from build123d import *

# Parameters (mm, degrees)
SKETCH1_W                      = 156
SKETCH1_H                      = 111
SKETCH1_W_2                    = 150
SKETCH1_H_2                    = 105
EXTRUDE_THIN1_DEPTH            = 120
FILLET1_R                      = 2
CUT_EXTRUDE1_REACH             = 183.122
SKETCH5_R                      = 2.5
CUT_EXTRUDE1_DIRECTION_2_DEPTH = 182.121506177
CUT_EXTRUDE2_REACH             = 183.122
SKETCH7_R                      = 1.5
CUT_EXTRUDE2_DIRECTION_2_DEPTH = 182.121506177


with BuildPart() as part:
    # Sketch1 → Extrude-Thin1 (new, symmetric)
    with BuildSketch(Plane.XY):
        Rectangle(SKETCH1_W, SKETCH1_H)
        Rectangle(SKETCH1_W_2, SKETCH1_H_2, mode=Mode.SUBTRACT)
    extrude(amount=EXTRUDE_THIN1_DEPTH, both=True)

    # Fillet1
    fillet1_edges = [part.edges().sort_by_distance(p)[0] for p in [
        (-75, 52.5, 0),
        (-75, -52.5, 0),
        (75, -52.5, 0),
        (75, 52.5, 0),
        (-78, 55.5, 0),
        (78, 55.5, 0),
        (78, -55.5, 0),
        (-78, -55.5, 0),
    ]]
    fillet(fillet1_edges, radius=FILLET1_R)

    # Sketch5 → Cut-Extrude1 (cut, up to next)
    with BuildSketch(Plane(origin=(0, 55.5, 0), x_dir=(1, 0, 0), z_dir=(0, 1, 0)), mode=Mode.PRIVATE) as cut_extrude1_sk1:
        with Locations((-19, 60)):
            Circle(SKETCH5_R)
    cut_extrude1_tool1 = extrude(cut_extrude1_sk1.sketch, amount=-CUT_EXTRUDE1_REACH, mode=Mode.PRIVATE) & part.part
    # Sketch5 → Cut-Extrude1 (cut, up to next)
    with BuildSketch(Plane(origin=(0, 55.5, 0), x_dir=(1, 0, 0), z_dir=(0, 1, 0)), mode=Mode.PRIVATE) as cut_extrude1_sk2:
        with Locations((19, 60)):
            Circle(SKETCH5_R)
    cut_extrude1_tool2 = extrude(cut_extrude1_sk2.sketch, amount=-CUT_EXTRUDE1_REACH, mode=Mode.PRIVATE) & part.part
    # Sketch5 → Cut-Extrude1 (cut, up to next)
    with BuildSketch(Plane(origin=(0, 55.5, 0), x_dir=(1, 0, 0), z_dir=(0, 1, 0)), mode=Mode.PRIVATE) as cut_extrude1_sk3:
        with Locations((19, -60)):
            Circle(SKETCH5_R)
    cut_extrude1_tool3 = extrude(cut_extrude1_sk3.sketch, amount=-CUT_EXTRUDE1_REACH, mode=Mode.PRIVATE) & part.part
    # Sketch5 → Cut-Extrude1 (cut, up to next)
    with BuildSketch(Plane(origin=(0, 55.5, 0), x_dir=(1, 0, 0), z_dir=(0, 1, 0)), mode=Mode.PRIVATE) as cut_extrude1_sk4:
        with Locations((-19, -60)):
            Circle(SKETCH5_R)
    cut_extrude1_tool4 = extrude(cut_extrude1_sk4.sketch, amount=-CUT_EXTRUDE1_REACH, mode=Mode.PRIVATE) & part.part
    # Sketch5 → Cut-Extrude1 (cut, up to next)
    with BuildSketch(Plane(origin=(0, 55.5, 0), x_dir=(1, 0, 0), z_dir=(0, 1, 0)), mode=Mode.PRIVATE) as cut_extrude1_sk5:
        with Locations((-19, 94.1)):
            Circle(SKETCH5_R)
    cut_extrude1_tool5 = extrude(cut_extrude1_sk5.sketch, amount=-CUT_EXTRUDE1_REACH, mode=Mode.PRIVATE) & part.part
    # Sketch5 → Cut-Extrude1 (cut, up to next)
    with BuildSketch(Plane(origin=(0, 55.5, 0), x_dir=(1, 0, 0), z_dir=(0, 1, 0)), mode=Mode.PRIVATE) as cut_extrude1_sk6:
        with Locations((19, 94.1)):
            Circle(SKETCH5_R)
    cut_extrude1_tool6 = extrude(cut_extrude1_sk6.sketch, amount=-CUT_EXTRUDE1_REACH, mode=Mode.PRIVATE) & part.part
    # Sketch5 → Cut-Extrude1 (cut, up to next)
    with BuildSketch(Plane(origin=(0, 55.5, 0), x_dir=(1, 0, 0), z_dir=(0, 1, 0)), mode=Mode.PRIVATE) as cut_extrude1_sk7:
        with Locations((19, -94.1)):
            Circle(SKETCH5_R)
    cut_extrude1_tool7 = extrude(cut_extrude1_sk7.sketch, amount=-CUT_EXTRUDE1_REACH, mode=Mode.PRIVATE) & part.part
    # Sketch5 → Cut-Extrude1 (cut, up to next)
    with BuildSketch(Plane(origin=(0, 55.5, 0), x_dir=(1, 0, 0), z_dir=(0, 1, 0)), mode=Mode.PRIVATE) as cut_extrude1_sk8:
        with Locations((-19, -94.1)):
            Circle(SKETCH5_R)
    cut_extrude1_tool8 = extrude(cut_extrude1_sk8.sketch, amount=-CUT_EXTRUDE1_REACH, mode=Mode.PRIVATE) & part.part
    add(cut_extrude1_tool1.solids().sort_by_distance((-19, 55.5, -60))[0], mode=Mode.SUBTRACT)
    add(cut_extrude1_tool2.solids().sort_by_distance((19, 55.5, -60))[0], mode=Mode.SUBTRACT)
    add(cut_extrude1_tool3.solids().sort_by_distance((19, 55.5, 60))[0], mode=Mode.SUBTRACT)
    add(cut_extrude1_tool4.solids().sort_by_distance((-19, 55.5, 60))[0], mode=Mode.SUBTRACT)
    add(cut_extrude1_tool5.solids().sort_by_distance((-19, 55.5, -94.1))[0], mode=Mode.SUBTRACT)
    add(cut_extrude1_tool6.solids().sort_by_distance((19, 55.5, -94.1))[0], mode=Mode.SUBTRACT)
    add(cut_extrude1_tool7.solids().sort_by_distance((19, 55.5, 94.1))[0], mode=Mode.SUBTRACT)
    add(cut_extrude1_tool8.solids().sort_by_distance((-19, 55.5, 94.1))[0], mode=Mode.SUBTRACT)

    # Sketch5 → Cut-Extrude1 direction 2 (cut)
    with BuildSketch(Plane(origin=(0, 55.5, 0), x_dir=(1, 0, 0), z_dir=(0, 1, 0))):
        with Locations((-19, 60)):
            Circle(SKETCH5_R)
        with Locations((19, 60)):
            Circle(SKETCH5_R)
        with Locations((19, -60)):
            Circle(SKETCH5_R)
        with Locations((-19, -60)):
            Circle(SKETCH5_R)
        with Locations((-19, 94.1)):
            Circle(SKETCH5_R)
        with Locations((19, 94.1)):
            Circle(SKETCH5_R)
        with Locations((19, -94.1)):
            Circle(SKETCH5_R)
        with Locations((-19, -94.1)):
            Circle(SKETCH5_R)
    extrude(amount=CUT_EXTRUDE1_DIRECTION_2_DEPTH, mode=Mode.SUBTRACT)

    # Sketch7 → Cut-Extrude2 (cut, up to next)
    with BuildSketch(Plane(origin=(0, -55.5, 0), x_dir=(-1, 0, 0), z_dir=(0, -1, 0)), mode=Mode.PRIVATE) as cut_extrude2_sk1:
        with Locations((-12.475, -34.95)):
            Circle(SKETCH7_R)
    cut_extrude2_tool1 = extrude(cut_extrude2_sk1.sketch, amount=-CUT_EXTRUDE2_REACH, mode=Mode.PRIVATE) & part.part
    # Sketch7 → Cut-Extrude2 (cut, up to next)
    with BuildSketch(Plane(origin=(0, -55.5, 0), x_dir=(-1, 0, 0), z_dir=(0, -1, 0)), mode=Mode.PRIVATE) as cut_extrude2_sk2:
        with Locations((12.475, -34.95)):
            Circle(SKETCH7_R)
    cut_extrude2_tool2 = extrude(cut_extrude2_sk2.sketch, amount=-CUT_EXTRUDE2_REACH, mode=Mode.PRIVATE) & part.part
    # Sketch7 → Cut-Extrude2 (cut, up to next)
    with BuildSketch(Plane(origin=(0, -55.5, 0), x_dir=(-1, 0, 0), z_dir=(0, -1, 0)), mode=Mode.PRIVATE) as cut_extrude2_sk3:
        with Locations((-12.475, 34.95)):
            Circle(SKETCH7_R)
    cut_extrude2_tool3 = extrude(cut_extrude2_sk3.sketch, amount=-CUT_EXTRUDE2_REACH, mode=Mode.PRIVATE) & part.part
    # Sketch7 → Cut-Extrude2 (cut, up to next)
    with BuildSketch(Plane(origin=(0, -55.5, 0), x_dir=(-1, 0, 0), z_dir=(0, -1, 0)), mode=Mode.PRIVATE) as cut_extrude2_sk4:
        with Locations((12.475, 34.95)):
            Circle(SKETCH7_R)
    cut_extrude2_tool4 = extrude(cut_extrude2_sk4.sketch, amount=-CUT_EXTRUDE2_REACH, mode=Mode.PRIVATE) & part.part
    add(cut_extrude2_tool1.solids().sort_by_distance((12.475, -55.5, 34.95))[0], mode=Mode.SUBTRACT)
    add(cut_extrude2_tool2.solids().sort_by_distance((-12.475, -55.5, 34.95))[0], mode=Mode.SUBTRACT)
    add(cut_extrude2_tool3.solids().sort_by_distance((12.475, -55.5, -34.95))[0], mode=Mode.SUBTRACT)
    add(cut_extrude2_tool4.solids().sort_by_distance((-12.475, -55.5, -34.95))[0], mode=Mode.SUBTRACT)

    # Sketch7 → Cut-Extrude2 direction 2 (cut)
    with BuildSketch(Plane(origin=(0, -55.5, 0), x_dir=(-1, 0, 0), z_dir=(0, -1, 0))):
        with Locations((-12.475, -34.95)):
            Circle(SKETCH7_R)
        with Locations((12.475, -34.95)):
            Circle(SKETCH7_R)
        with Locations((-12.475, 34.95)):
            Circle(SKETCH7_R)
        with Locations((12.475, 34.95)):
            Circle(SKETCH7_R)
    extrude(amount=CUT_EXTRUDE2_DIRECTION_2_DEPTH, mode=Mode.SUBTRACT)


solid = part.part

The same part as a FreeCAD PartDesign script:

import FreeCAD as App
import Part
import Sketcher

V = App.Vector
Q = App.Units.Quantity


def edges_at(feature, points):
    """Names of the edges that pass closest to the given points."""
    edges = feature.Shape.Edges
    near = lambda p: min(range(len(edges)), key=lambda i: edges[i].distToShape(Part.Vertex(*p))[0])
    return sorted({f"Edge{near(p) + 1}" for p in points})


def add_polygon(sketch, points):
    """Adds a closed chain of lines whose ends are joined by coincident constraints."""
    first, n = sketch.GeometryCount, len(points)
    for a, b in zip(points, points[1:] + points[:1]):
        sketch.addGeometry(Part.LineSegment(App.Vector(*a, 0), App.Vector(*b, 0)), False)
    for i in range(n):
        sketch.addConstraint(Sketcher.Constraint("Coincident", first + i, 2, first + (i + 1) % n, 1))

doc = App.newDocument("Part")
params = doc.addObject("Spreadsheet::Sheet", "Params")
for row, (alias, value) in enumerate([
    ("sketch1_width", "156 mm"),
    ("sketch1_width2", "150 mm"),
    ("sketch1_height", "111 mm"),
    ("sketch1_height2", "105 mm"),
    ("pad1_length", "240 mm"),
    ("fillet_radius", "2 mm"),
    ("sketch2_diameter", "5 mm"),
    ("sketch3_diameter", "5 mm"),
    ("sketch4_diameter", "5 mm"),
    ("sketch5_diameter", "5 mm"),
    ("sketch6_diameter", "5 mm"),
    ("sketch7_diameter", "5 mm"),
    ("sketch8_diameter", "5 mm"),
    ("sketch9_diameter", "5 mm"),
    ("sketch10_diameter", "5 mm"),
    ("pocket9_length", "182.121506 mm"),
    ("sketch11_diameter", "3 mm"),
    ("sketch12_diameter", "3 mm"),
    ("sketch13_diameter", "3 mm"),
    ("sketch14_diameter", "3 mm"),
    ("sketch15_diameter", "3 mm"),
    ("pocket14_length", "182.121506 mm"),
], start=1):
    params.set(f"A{row}", alias)
    params.set(f"B{row}", "=" + value)
    params.setAlias(f"B{row}", alias)

body = doc.addObject("PartDesign::Body", "Body")

# Sketch on XY plane
sketch1 = body.newObject("Sketcher::SketchObject", "Sketch")
sketch1.AttachmentSupport = (doc.getObject("XY_Plane"), [""])
sketch1.MapMode = "FlatFace"
add_polygon(sketch1, [(-78, 55.5), (-78, -55.5), (78, -55.5), (78, 55.5)])  # lines 0-3
add_polygon(sketch1, [(75, -52.5), (-75, -52.5), (-75, 52.5), (75, 52.5)])  # lines 4-7
sketch1.addConstraint([
    Sketcher.Constraint("Vertical", 0),
    Sketcher.Constraint("Horizontal", 1),
    Sketcher.Constraint("Vertical", 2),
    Sketcher.Constraint("Horizontal", 3),
    Sketcher.Constraint("Horizontal", 4),
    Sketcher.Constraint("Vertical", 5),
    Sketcher.Constraint("Horizontal", 6),
    Sketcher.Constraint("Vertical", 7),
    Sketcher.Constraint("Symmetric", 0, 2, 2, 2, -1, 1),
    Sketcher.Constraint("Symmetric", 4, 2, 6, 2, -1, 1),
    Sketcher.Constraint("DistanceX", 1, 1, 1, 2, Q("156 mm")),
    Sketcher.Constraint("DistanceX", 4, 2, 4, 1, Q("150 mm")),
    Sketcher.Constraint("DistanceY", 0, 2, 0, 1, Q("111 mm")),
    Sketcher.Constraint("DistanceY", 5, 1, 5, 2, Q("105 mm")),
])
sketch1.setExpression("Constraints[18]", "Params.sketch1_width")
sketch1.setExpression("Constraints[19]", "Params.sketch1_width2")
sketch1.setExpression("Constraints[20]", "Params.sketch1_height")
sketch1.setExpression("Constraints[21]", "Params.sketch1_height2")
pad1 = body.newObject("PartDesign::Pad", "Pad")
pad1.Profile = sketch1
pad1.setExpression("Length", "Params.pad1_length")
pad1.Midplane = True
doc.recompute()

fillet = body.newObject("PartDesign::Fillet", "Fillet")
fillet.Base = (pad1, edges_at(pad1, [
    (-75, 52.5, 0),
    (-75, -52.5, 0),
    (75, -52.5, 0),
    (75, 52.5, 0),
    (-78, 55.5, 0),
    (78, 55.5, 0),
    (78, -55.5, 0),
    (-78, -55.5, 0),
]))
fillet.setExpression("Radius", "Params.fillet_radius")

# Sketch on XZ plane
sketch2 = body.newObject("Sketcher::SketchObject", "Sketch001")
sketch2.AttachmentSupport = (doc.getObject("XZ_Plane"), [""])
sketch2.MapMode = "FlatFace"
sketch2.AttachmentOffset = App.Placement(V(0, 0, -55.5), App.Rotation())
sketch2.addGeometry(Part.Circle(V(-19, -60, 0), V(0, 0, 1), 2.5), False)
sketch2.addConstraint([
    Sketcher.Constraint("Diameter", 0, Q("5 mm")),
    Sketcher.Constraint("DistanceX", 0, 3, -1, 1, Q("19 mm")),
    Sketcher.Constraint("DistanceY", 0, 3, -1, 1, Q("60 mm")),
])
sketch2.setExpression("Constraints[0]", "Params.sketch2_diameter")
pocket1 = body.newObject("PartDesign::Pocket", "Pocket")
pocket1.Profile = sketch2
pocket1.Type = "UpToFirst"
pocket1.Reversed = True

# Sketch on XZ plane
sketch3 = body.newObject("Sketcher::SketchObject", "Sketch002")
sketch3.AttachmentSupport = (doc.getObject("XZ_Plane"), [""])
sketch3.MapMode = "FlatFace"
sketch3.AttachmentOffset = App.Placement(V(0, 0, -55.5), App.Rotation())
sketch3.addGeometry(Part.Circle(V(19, -60, 0), V(0, 0, 1), 2.5), False)
sketch3.addConstraint([
    Sketcher.Constraint("Diameter", 0, Q("5 mm")),
    Sketcher.Constraint("DistanceX", -1, 1, 0, 3, Q("19 mm")),
    Sketcher.Constraint("DistanceY", 0, 3, -1, 1, Q("60 mm")),
])
sketch3.setExpression("Constraints[0]", "Params.sketch3_diameter")
pocket2 = body.newObject("PartDesign::Pocket", "Pocket001")
pocket2.Profile = sketch3
pocket2.Type = "UpToFirst"
pocket2.Reversed = True

# Sketch on XZ plane
sketch4 = body.newObject("Sketcher::SketchObject", "Sketch003")
sketch4.AttachmentSupport = (doc.getObject("XZ_Plane"), [""])
sketch4.MapMode = "FlatFace"
sketch4.AttachmentOffset = App.Placement(V(0, 0, -55.5), App.Rotation())
sketch4.addGeometry(Part.Circle(V(19, 60, 0), V(0, 0, 1), 2.5), False)
sketch4.addConstraint([
    Sketcher.Constraint("Diameter", 0, Q("5 mm")),
    Sketcher.Constraint("DistanceX", -1, 1, 0, 3, Q("19 mm")),
    Sketcher.Constraint("DistanceY", -1, 1, 0, 3, Q("60 mm")),
])
sketch4.setExpression("Constraints[0]", "Params.sketch4_diameter")
pocket3 = body.newObject("PartDesign::Pocket", "Pocket002")
pocket3.Profile = sketch4
pocket3.Type = "UpToFirst"
pocket3.Reversed = True

# Sketch on XZ plane
sketch5 = body.newObject("Sketcher::SketchObject", "Sketch004")
sketch5.AttachmentSupport = (doc.getObject("XZ_Plane"), [""])
sketch5.MapMode = "FlatFace"
sketch5.AttachmentOffset = App.Placement(V(0, 0, -55.5), App.Rotation())
sketch5.addGeometry(Part.Circle(V(-19, 60, 0), V(0, 0, 1), 2.5), False)
sketch5.addConstraint([
    Sketcher.Constraint("Diameter", 0, Q("5 mm")),
    Sketcher.Constraint("DistanceX", 0, 3, -1, 1, Q("19 mm")),
    Sketcher.Constraint("DistanceY", -1, 1, 0, 3, Q("60 mm")),
])
sketch5.setExpression("Constraints[0]", "Params.sketch5_diameter")
pocket4 = body.newObject("PartDesign::Pocket", "Pocket003")
pocket4.Profile = sketch5
pocket4.Type = "UpToFirst"
pocket4.Reversed = True

# Sketch on XZ plane
sketch6 = body.newObject("Sketcher::SketchObject", "Sketch005")
sketch6.AttachmentSupport = (doc.getObject("XZ_Plane"), [""])
sketch6.MapMode = "FlatFace"
sketch6.AttachmentOffset = App.Placement(V(0, 0, -55.5), App.Rotation())
sketch6.addGeometry(Part.Circle(V(-19, -94.1, 0), V(0, 0, 1), 2.5), False)
sketch6.addConstraint([
    Sketcher.Constraint("Diameter", 0, Q("5 mm")),
    Sketcher.Constraint("DistanceX", 0, 3, -1, 1, Q("19 mm")),
    Sketcher.Constraint("DistanceY", 0, 3, -1, 1, Q("94.1 mm")),
])
sketch6.setExpression("Constraints[0]", "Params.sketch6_diameter")
pocket5 = body.newObject("PartDesign::Pocket", "Pocket004")
pocket5.Profile = sketch6
pocket5.Type = "UpToFirst"
pocket5.Reversed = True

# Sketch on XZ plane
sketch7 = body.newObject("Sketcher::SketchObject", "Sketch006")
sketch7.AttachmentSupport = (doc.getObject("XZ_Plane"), [""])
sketch7.MapMode = "FlatFace"
sketch7.AttachmentOffset = App.Placement(V(0, 0, -55.5), App.Rotation())
sketch7.addGeometry(Part.Circle(V(19, -94.1, 0), V(0, 0, 1), 2.5), False)
sketch7.addConstraint([
    Sketcher.Constraint("Diameter", 0, Q("5 mm")),
    Sketcher.Constraint("DistanceX", -1, 1, 0, 3, Q("19 mm")),
    Sketcher.Constraint("DistanceY", 0, 3, -1, 1, Q("94.1 mm")),
])
sketch7.setExpression("Constraints[0]", "Params.sketch7_diameter")
pocket6 = body.newObject("PartDesign::Pocket", "Pocket005")
pocket6.Profile = sketch7
pocket6.Type = "UpToFirst"
pocket6.Reversed = True

# Sketch on XZ plane
sketch8 = body.newObject("Sketcher::SketchObject", "Sketch007")
sketch8.AttachmentSupport = (doc.getObject("XZ_Plane"), [""])
sketch8.MapMode = "FlatFace"
sketch8.AttachmentOffset = App.Placement(V(0, 0, -55.5), App.Rotation())
sketch8.addGeometry(Part.Circle(V(19, 94.1, 0), V(0, 0, 1), 2.5), False)
sketch8.addConstraint([
    Sketcher.Constraint("Diameter", 0, Q("5 mm")),
    Sketcher.Constraint("DistanceX", -1, 1, 0, 3, Q("19 mm")),
    Sketcher.Constraint("DistanceY", -1, 1, 0, 3, Q("94.1 mm")),
])
sketch8.setExpression("Constraints[0]", "Params.sketch8_diameter")
pocket7 = body.newObject("PartDesign::Pocket", "Pocket006")
pocket7.Profile = sketch8
pocket7.Type = "UpToFirst"
pocket7.Reversed = True

# Sketch on XZ plane
sketch9 = body.newObject("Sketcher::SketchObject", "Sketch008")
sketch9.AttachmentSupport = (doc.getObject("XZ_Plane"), [""])
sketch9.MapMode = "FlatFace"
sketch9.AttachmentOffset = App.Placement(V(0, 0, -55.5), App.Rotation())
sketch9.addGeometry(Part.Circle(V(-19, 94.1, 0), V(0, 0, 1), 2.5), False)
sketch9.addConstraint([
    Sketcher.Constraint("Diameter", 0, Q("5 mm")),
    Sketcher.Constraint("DistanceX", 0, 3, -1, 1, Q("19 mm")),
    Sketcher.Constraint("DistanceY", -1, 1, 0, 3, Q("94.1 mm")),
])
sketch9.setExpression("Constraints[0]", "Params.sketch9_diameter")
pocket8 = body.newObject("PartDesign::Pocket", "Pocket007")
pocket8.Profile = sketch9
pocket8.Type = "UpToFirst"
pocket8.Reversed = True

# Sketch on XZ plane
sketch10 = body.newObject("Sketcher::SketchObject", "Sketch009")
sketch10.AttachmentSupport = (doc.getObject("XZ_Plane"), [""])
sketch10.MapMode = "FlatFace"
sketch10.AttachmentOffset = App.Placement(V(0, 0, -55.5), App.Rotation())
sketch10.addGeometry([
    Part.Circle(V(-19, -60, 0), V(0, 0, 1), 2.5),  # 0
    Part.Circle(V(19, -60, 0), V(0, 0, 1), 2.5),  # 1
    Part.Circle(V(19, 60, 0), V(0, 0, 1), 2.5),  # 2
    Part.Circle(V(-19, 60, 0), V(0, 0, 1), 2.5),  # 3
    Part.Circle(V(-19, -94.1, 0), V(0, 0, 1), 2.5),  # 4
    Part.Circle(V(19, -94.1, 0), V(0, 0, 1), 2.5),  # 5
    Part.Circle(V(19, 94.1, 0), V(0, 0, 1), 2.5),  # 6
    Part.Circle(V(-19, 94.1, 0), V(0, 0, 1), 2.5),  # 7
], False)
sketch10.addConstraint([
    Sketcher.Constraint("Equal", 0, 1),
    Sketcher.Constraint("Equal", 1, 2),
    Sketcher.Constraint("Equal", 2, 3),
    Sketcher.Constraint("Equal", 3, 4),
    Sketcher.Constraint("Equal", 4, 5),
    Sketcher.Constraint("Equal", 5, 6),
    Sketcher.Constraint("Equal", 6, 7),
    Sketcher.Constraint("Symmetric", 0, 3, 2, 3, -1, 1),
    Sketcher.Constraint("Symmetric", 1, 3, 3, 3, -1, 1),
    Sketcher.Constraint("Symmetric", 4, 3, 6, 3, -1, 1),
    Sketcher.Constraint("Symmetric", 5, 3, 7, 3, -1, 1),
    Sketcher.Constraint("Symmetric", 0, 3, 1, 3, -2),
    Sketcher.Constraint("Symmetric", 4, 3, 5, 3, -2),
    Sketcher.Constraint("Vertical", 3, 3, 4, 3),
    Sketcher.Constraint("Diameter", 0, Q("5 mm")),
    Sketcher.Constraint("DistanceX", 0, 3, -1, 1, Q("19 mm")),
    Sketcher.Constraint("DistanceY", 0, 3, -1, 1, Q("60 mm")),
    Sketcher.Constraint("DistanceY", 4, 3, -1, 1, Q("94.1 mm")),
])
sketch10.setExpression("Constraints[14]", "Params.sketch10_diameter")
pocket9 = body.newObject("PartDesign::Pocket", "Pocket008")
pocket9.Profile = sketch10
pocket9.setExpression("Length", "Params.pocket9_length")

# Sketch on XZ plane
sketch11 = body.newObject("Sketcher::SketchObject", "Sketch010")
sketch11.AttachmentSupport = (doc.getObject("XZ_Plane"), [""])
sketch11.MapMode = "FlatFace"
sketch11.AttachmentOffset = App.Placement(V(0, 0, 55.5), App.Rotation())
sketch11.addGeometry(Part.Circle(V(12.475, 34.95, 0), V(0, 0, 1), 1.5), False)
sketch11.addConstraint([
    Sketcher.Constraint("Diameter", 0, Q("3 mm")),
    Sketcher.Constraint("DistanceY", -1, 1, 0, 3, Q("34.95 mm")),
    Sketcher.Constraint("DistanceX", -1, 1, 0, 3, Q("12.475 mm")),
])
sketch11.setExpression("Constraints[0]", "Params.sketch11_diameter")
pocket10 = body.newObject("PartDesign::Pocket", "Pocket009")
pocket10.Profile = sketch11
pocket10.Type = "UpToFirst"

# Sketch on XZ plane
sketch12 = body.newObject("Sketcher::SketchObject", "Sketch011")
sketch12.AttachmentSupport = (doc.getObject("XZ_Plane"), [""])
sketch12.MapMode = "FlatFace"
sketch12.AttachmentOffset = App.Placement(V(0, 0, 55.5), App.Rotation())
sketch12.addGeometry(Part.Circle(V(-12.475, 34.95, 0), V(0, 0, 1), 1.5), False)
sketch12.addConstraint([
    Sketcher.Constraint("Diameter", 0, Q("3 mm")),
    Sketcher.Constraint("DistanceY", -1, 1, 0, 3, Q("34.95 mm")),
    Sketcher.Constraint("DistanceX", 0, 3, -1, 1, Q("12.475 mm")),
])
sketch12.setExpression("Constraints[0]", "Params.sketch12_diameter")
pocket11 = body.newObject("PartDesign::Pocket", "Pocket010")
pocket11.Profile = sketch12
pocket11.Type = "UpToFirst"

# Sketch on XZ plane
sketch13 = body.newObject("Sketcher::SketchObject", "Sketch012")
sketch13.AttachmentSupport = (doc.getObject("XZ_Plane"), [""])
sketch13.MapMode = "FlatFace"
sketch13.AttachmentOffset = App.Placement(V(0, 0, 55.5), App.Rotation())
sketch13.addGeometry(Part.Circle(V(12.475, -34.95, 0), V(0, 0, 1), 1.5), False)
sketch13.addConstraint([
    Sketcher.Constraint("Diameter", 0, Q("3 mm")),
    Sketcher.Constraint("DistanceY", 0, 3, -1, 1, Q("34.95 mm")),
    Sketcher.Constraint("DistanceX", -1, 1, 0, 3, Q("12.475 mm")),
])
sketch13.setExpression("Constraints[0]", "Params.sketch13_diameter")
pocket12 = body.newObject("PartDesign::Pocket", "Pocket011")
pocket12.Profile = sketch13
pocket12.Type = "UpToFirst"

# Sketch on XZ plane
sketch14 = body.newObject("Sketcher::SketchObject", "Sketch013")
sketch14.AttachmentSupport = (doc.getObject("XZ_Plane"), [""])
sketch14.MapMode = "FlatFace"
sketch14.AttachmentOffset = App.Placement(V(0, 0, 55.5), App.Rotation())
sketch14.addGeometry(Part.Circle(V(-12.475, -34.95, 0), V(0, 0, 1), 1.5), False)
sketch14.addConstraint([
    Sketcher.Constraint("Diameter", 0, Q("3 mm")),
    Sketcher.Constraint("DistanceY", 0, 3, -1, 1, Q("34.95 mm")),
    Sketcher.Constraint("DistanceX", 0, 3, -1, 1, Q("12.475 mm")),
])
sketch14.setExpression("Constraints[0]", "Params.sketch14_diameter")
pocket13 = body.newObject("PartDesign::Pocket", "Pocket012")
pocket13.Profile = sketch14
pocket13.Type = "UpToFirst"

# Sketch on XZ plane
sketch15 = body.newObject("Sketcher::SketchObject", "Sketch014")
sketch15.AttachmentSupport = (doc.getObject("XZ_Plane"), [""])
sketch15.MapMode = "FlatFace"
sketch15.AttachmentOffset = App.Placement(V(0, 0, 55.5), App.Rotation())
sketch15.addGeometry([
    Part.Circle(V(12.475, 34.95, 0), V(0, 0, 1), 1.5),
    Part.Circle(V(-12.475, 34.95, 0), V(0, 0, 1), 1.5),
    Part.Circle(V(12.475, -34.95, 0), V(0, 0, 1), 1.5),
    Part.Circle(V(-12.475, -34.95, 0), V(0, 0, 1), 1.5),
], False)
sketch15.addConstraint([
    Sketcher.Constraint("Equal", 0, 1),
    Sketcher.Constraint("Equal", 1, 2),
    Sketcher.Constraint("Equal", 2, 3),
    Sketcher.Constraint("Symmetric", 1, 3, 2, 3, -1, 1),
    Sketcher.Constraint("Symmetric", 0, 3, 3, 3, -1, 1),
    Sketcher.Constraint("Symmetric", 0, 3, 1, 3, -2),
    Sketcher.Constraint("Diameter", 0, Q("3 mm")),
    Sketcher.Constraint("DistanceY", 2, 3, 0, 3, Q("69.9 mm")),
    Sketcher.Constraint("DistanceX", 1, 3, 0, 3, Q("24.95 mm")),
])
sketch15.setExpression("Constraints[6]", "Params.sketch15_diameter")
pocket14 = body.newObject("PartDesign::Pocket", "Pocket013")
pocket14.Profile = sketch15
pocket14.setExpression("Length", "Params.pocket14_length")
pocket14.Reversed = True

doc.recompute()
